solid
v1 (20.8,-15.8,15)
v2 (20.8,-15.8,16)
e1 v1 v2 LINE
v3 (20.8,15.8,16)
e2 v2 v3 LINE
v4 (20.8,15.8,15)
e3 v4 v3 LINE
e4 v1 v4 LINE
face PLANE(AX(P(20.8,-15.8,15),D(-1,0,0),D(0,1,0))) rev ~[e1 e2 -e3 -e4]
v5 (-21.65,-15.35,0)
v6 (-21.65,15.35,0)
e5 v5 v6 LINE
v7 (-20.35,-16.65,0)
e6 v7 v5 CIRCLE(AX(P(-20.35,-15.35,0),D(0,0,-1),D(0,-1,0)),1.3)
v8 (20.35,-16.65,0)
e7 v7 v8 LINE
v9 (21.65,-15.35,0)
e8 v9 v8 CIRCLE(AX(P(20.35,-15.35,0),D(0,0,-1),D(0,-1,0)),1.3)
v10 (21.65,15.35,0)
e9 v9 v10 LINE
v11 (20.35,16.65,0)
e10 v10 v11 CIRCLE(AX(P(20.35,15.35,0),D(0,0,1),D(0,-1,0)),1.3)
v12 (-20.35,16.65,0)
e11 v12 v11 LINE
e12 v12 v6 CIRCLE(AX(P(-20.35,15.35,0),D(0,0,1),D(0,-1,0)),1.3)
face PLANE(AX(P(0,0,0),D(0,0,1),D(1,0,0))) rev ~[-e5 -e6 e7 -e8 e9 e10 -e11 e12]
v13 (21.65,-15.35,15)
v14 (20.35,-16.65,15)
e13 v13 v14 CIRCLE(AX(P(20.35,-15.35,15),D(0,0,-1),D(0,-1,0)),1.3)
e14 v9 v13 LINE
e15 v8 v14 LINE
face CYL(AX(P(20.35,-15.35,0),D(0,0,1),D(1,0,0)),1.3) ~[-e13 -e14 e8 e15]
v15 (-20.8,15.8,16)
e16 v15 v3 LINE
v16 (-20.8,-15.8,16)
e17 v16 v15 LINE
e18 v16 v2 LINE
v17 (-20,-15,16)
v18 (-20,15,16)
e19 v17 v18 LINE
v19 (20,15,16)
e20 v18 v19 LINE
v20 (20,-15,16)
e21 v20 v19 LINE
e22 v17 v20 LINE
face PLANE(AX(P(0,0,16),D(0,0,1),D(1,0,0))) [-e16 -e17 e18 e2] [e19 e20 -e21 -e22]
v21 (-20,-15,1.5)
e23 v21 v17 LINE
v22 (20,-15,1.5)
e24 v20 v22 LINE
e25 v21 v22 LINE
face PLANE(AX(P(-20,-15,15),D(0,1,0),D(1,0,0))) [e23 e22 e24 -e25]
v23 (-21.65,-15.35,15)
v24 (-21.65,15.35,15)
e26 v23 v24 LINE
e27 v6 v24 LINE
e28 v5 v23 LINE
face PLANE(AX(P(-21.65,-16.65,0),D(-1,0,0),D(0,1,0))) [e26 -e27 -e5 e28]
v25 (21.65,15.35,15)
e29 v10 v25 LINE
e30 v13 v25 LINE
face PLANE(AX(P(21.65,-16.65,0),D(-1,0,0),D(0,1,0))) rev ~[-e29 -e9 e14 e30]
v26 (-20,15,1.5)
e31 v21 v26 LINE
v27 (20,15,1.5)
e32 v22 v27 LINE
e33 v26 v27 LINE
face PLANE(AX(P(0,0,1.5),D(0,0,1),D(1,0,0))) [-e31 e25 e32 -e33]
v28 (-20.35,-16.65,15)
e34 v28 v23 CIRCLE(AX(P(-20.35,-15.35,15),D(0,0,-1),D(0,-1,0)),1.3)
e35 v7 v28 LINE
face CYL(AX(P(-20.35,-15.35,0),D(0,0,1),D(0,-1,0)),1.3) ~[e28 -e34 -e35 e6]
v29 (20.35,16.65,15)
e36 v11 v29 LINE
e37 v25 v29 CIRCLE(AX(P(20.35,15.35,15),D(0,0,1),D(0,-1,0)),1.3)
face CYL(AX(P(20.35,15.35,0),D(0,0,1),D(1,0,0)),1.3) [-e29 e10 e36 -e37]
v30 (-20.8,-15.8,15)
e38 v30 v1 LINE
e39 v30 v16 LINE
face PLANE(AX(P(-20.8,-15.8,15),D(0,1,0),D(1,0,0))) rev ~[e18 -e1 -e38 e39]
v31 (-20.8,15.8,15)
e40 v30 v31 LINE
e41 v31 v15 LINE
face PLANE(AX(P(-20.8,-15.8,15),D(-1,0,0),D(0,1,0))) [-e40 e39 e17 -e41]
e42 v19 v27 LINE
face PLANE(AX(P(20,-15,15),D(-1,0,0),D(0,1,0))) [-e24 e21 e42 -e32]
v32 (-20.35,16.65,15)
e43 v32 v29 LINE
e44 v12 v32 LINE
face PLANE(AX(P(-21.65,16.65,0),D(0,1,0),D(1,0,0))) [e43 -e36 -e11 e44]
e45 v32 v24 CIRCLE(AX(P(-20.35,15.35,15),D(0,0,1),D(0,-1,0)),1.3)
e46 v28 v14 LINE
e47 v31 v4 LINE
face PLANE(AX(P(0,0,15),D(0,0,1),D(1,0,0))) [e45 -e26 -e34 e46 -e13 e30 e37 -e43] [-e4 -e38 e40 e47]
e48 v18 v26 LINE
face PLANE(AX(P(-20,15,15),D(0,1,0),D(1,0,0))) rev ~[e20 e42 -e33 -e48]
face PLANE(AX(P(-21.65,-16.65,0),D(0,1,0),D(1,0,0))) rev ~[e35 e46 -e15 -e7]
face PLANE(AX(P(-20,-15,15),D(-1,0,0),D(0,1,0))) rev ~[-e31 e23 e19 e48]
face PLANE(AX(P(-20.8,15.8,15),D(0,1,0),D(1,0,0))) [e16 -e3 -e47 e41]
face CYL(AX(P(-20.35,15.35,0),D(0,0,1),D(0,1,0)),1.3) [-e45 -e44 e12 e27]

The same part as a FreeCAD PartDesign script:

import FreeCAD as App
import Part
import Sketcher
from FreeCAD import Vector
Q = App.Units.Quantity


def edges_at(feature, points):
    """Names of the edges that pass closest to the given points."""
    edges = feature.Shape.Edges
    near = lambda p: min(range(len(edges)), key=lambda i: edges[i].distToShape(Part.Vertex(*p))[0])
    return sorted({f"Edge{near(p) + 1}" for p in points})

doc = App.newDocument("Part")
params = doc.addObject("Spreadsheet::Sheet", "Params")
for row, (alias, value) in enumerate([
    ("sketch1_width", "40 mm"),
    ("sketch1_height", "30 mm"),
    ("sketch1_width2", "43.3 mm"),
    ("sketch1_height2", "33.3 mm"),
    ("pad1_length", "15 mm"),
    ("sketch2_width", "40 mm"),
    ("sketch2_height", "30 mm"),
    ("pad2_length", "1.5 mm"),
    ("sketch3_width", "40 mm"),
    ("sketch3_height", "30 mm"),
    ("sketch3_width2", "41.6 mm"),
    ("sketch3_height2", "31.6 mm"),
    ("pad3_length", "1 mm"),
    ("fillet_radius", "1.3 mm"),
], start=1):
    params.set(f"A{row}", alias)
    params.set(f"B{row}", "=" + value)
    params.setAlias(f"B{row}", alias)

body = doc.addObject("PartDesign::Body", "Body")

# Sketch on XY plane
sketch1 = body.newObject("Sketcher::SketchObject", "Sketch")
sketch1.AttachmentSupport = (doc.getObject("XY_Plane"), [""])
sketch1.MapMode = "FlatFace"
sketch1.addGeometry(Part.LineSegment(Vector(-22, 17, 0), Vector(-22, -17, 0)), False)
sketch1.addGeometry(Part.LineSegment(Vector(-22, -17, 0), Vector(22, -17, 0)), False)
sketch1.addGeometry(Part.LineSegment(Vector(22, -17, 0), Vector(22, 17, 0)), False)
sketch1.addGeometry(Part.LineSegment(Vector(22, 17, 0), Vector(-22, 17, 0)), False)
sketch1.addGeometry(Part.LineSegment(Vector(20, -15, 0), Vector(-20, -15, 0)), False)
sketch1.addGeometry(Part.LineSegment(Vector(-20, -15, 0), Vector(-20, 15, 0)), False)
sketch1.addGeometry(Part.LineSegment(Vector(-20, 15, 0), Vector(20, 15, 0)), False)
sketch1.addGeometry(Part.LineSegment(Vector(20, 15, 0), Vector(20, -15, 0)), False)
sketch1.addConstraint(Sketcher.Constraint("Coincident", 0, 2, 1, 1))
sketch1.addConstraint(Sketcher.Constraint("Coincident", 1, 2, 2, 1))
sketch1.addConstraint(Sketcher.Constraint("Coincident", 2, 2, 3, 1))
sketch1.addConstraint(Sketcher.Constraint("Coincident", 3, 2, 0, 1))
sketch1.addConstraint(Sketcher.Constraint("Coincident", 4, 2, 5, 1))
sketch1.addConstraint(Sketcher.Constraint("Coincident", 5, 2, 6, 1))
sketch1.addConstraint(Sketcher.Constraint("Coincident", 6, 2, 7, 1))
sketch1.addConstraint(Sketcher.Constraint("Coincident", 7, 2, 4, 1))
sketch1.addConstraint(Sketcher.Constraint("Vertical", 0))
sketch1.addConstraint(Sketcher.Constraint("Horizontal", 1))
sketch1.addConstraint(Sketcher.Constraint("Vertical", 2))
sketch1.addConstraint(Sketcher.Constraint("Horizontal", 3))
sketch1.addConstraint(Sketcher.Constraint("Horizontal", 4))
sketch1.addConstraint(Sketcher.Constraint("Vertical", 5))
sketch1.addConstraint(Sketcher.Constraint("Horizontal", 6))
sketch1.addConstraint(Sketcher.Constraint("Vertical", 7))
sketch1.addConstraint(Sketcher.Constraint("Symmetric", 0, 2, 2, 2, -1, 1))
sketch1.addConstraint(Sketcher.Constraint("Symmetric", 4, 2, 6, 2, -1, 1))
sketch1.addConstraint(Sketcher.Constraint("DistanceX", 4, 2, 4, 1, Q("40 mm")))
sketch1.addConstraint(Sketcher.Constraint("DistanceY", 5, 1, 5, 2, Q("30 mm")))
sketch1.addConstraint(Sketcher.Constraint("DistanceX", 1, 1, 1, 2, Q("43.3 mm")))
sketch1.addConstraint(Sketcher.Constraint("DistanceY", 0, 2, 0, 1, Q("33.3 mm")))
sketch1.setExpression("Constraints[18]", "Params.sketch1_width")
sketch1.setExpression("Constraints[19]", "Params.sketch1_height")
sketch1.setExpression("Constraints[20]", "Params.sketch1_width2")
sketch1.setExpression("Constraints[21]", "Params.sketch1_height2")
pad1 = body.newObject("PartDesign::Pad", "Pad")
pad1.Profile = sketch1
pad1.setExpression("Length", "Params.pad1_length")

# Sketch on XY plane
sketch2 = body.newObject("Sketcher::SketchObject", "Sketch001")
sketch2.AttachmentSupport = (doc.getObject("XY_Plane"), [""])
sketch2.MapMode = "FlatFace"
sketch2.addGeometry(Part.LineSegment(Vector(-20, 15, 0), Vector(-20, -15, 0)), False)
sketch2.addGeometry(Part.LineSegment(Vector(-20, -15, 0), Vector(20, -15, 0)), False)
sketch2.addGeometry(Part.LineSegment(Vector(20, -15, 0), Vector(20, 15, 0)), False)
sketch2.addGeometry(Part.LineSegment(Vector(20, 15, 0), Vector(-20, 15, 0)), False)
sketch2.addConstraint(Sketcher.Constraint("Coincident", 0, 2, 1, 1))
sketch2.addConstraint(Sketcher.Constraint("Coincident", 1, 2, 2, 1))
sketch2.addConstraint(Sketcher.Constraint("Coincident", 2, 2, 3, 1))
sketch2.addConstraint(Sketcher.Constraint("Coincident", 3, 2, 0, 1))
sketch2.addConstraint(Sketcher.Constraint("Vertical", 0))
sketch2.addConstraint(Sketcher.Constraint("Horizontal", 1))
sketch2.addConstraint(Sketcher.Constraint("Vertical", 2))
sketch2.addConstraint(Sketcher.Constraint("Horizontal", 3))
sketch2.addConstraint(Sketcher.Constraint("Symmetric", 0, 2, 2, 2, -1, 1))
sketch2.addConstraint(Sketcher.Constraint("DistanceX", 1, 1, 1, 2, Q("40 mm")))
sketch2.addConstraint(Sketcher.Constraint("DistanceY", 0, 2, 0, 1, Q("30 mm")))
sketch2.setExpression("Constraints[9]", "Params.sketch2_width")
sketch2.setExpression("Constraints[10]", "Params.sketch2_height")
pad2 = body.newObject("PartDesign::Pad", "Pad001")
pad2.Profile = sketch2
pad2.setExpression("Length", "Params.pad2_length")

# Sketch on XY plane
sketch3 = body.newObject("Sketcher::SketchObject", "Sketch002")
sketch3.AttachmentSupport = (doc.getObject("XY_Plane"), [""])
sketch3.MapMode = "FlatFace"
sketch3.AttachmentOffset = App.Placement(Vector(0, 0, 15), App.Rotation())
sketch3.addGeometry(Part.LineSegment(Vector(-21, 16, 0), Vector(-21, -16, 0)), False)
sketch3.addGeometry(Part.LineSegment(Vector(-21, -16, 0), Vector(21, -16, 0)), False)
sketch3.addGeometry(Part.LineSegment(Vector(21, -16, 0), Vector(21, 16, 0)), False)
sketch3.addGeometry(Part.LineSegment(Vector(21, 16, 0), Vector(-21, 16, 0)), False)
sketch3.addGeometry(Part.LineSegment(Vector(20, -15, 0), Vector(-20, -15, 0)), False)
sketch3.addGeometry(Part.LineSegment(Vector(-20, -15, 0), Vector(-20, 15, 0)), False)
sketch3.addGeometry(Part.LineSegment(Vector(-20, 15, 0), Vector(20, 15, 0)), False)
sketch3.addGeometry(Part.LineSegment(Vector(20, 15, 0), Vector(20, -15, 0)), False)
sketch3.addConstraint(Sketcher.Constraint("Coincident", 0, 2, 1, 1))
sketch3.addConstraint(Sketcher.Constraint("Coincident", 1, 2, 2, 1))
sketch3.addConstraint(Sketcher.Constraint("Coincident", 2, 2, 3, 1))
sketch3.addConstraint(Sketcher.Constraint("Coincident", 3, 2, 0, 1))
sketch3.addConstraint(Sketcher.Constraint("Coincident", 4, 2, 5, 1))
sketch3.addConstraint(Sketcher.Constraint("Coincident", 5, 2, 6, 1))
sketch3.addConstraint(Sketcher.Constraint("Coincident", 6, 2, 7, 1))
sketch3.addConstraint(Sketcher.Constraint("Coincident", 7, 2, 4, 1))
sketch3.addConstraint(Sketcher.Constraint("Vertical", 0))
sketch3.addConstraint(Sketcher.Constraint("Horizontal", 1))
sketch3.addConstraint(Sketcher.Constraint("Vertical", 2))
sketch3.addConstraint(Sketcher.Constraint("Horizontal", 3))
sketch3.addConstraint(Sketcher.Constraint("Horizontal", 4))
sketch3.addConstraint(Sketcher.Constraint("Vertical", 5))
sketch3.addConstraint(Sketcher.Constraint("Horizontal", 6))
sketch3.addConstraint(Sketcher.Constraint("Vertical", 7))
sketch3.addConstraint(Sketcher.Constraint("Symmetric", 0, 2, 2, 2, -1, 1))
sketch3.addConstraint(Sketcher.Constraint("Symmetric", 4, 2, 6, 2, -1, 1))
sketch3.addConstraint(Sketcher.Constraint("DistanceX", 4, 2, 4, 1, Q("40 mm")))
sketch3.addConstraint(Sketcher.Constraint("DistanceY", 5, 1, 5, 2, Q("30 mm")))
sketch3.addConstraint(Sketcher.Constraint("DistanceX", 1, 1, 1, 2, Q("41.6 mm")))
sketch3.addConstraint(Sketcher.Constraint("DistanceY", 0, 2, 0, 1, Q("31.6 mm")))
sketch3.setExpression("Constraints[18]", "Params.sketch3_width")
sketch3.setExpression("Constraints[19]", "Params.sketch3_height")
sketch3.setExpression("Constraints[20]", "Params.sketch3_width2")
sketch3.setExpression("Constraints[21]", "Params.sketch3_height2")
pad3 = body.newObject("PartDesign::Pad", "Pad002")
pad3.Profile = sketch3
pad3.setExpression("Length", "Params.pad3_length")
doc.recompute()

fillet = body.newObject("PartDesign::Fillet", "Fillet")
fillet.Base = (pad3, edges_at(pad3, [
    (-21.65, -16.65, 7.5),
    (21.65, -16.65, 7.5),
    (21.65, 16.65, 7.5),
    (-21.65, 16.65, 7.5),
]))
fillet.setExpression("Radius", "Params.fillet_radius")

doc.recompute()
